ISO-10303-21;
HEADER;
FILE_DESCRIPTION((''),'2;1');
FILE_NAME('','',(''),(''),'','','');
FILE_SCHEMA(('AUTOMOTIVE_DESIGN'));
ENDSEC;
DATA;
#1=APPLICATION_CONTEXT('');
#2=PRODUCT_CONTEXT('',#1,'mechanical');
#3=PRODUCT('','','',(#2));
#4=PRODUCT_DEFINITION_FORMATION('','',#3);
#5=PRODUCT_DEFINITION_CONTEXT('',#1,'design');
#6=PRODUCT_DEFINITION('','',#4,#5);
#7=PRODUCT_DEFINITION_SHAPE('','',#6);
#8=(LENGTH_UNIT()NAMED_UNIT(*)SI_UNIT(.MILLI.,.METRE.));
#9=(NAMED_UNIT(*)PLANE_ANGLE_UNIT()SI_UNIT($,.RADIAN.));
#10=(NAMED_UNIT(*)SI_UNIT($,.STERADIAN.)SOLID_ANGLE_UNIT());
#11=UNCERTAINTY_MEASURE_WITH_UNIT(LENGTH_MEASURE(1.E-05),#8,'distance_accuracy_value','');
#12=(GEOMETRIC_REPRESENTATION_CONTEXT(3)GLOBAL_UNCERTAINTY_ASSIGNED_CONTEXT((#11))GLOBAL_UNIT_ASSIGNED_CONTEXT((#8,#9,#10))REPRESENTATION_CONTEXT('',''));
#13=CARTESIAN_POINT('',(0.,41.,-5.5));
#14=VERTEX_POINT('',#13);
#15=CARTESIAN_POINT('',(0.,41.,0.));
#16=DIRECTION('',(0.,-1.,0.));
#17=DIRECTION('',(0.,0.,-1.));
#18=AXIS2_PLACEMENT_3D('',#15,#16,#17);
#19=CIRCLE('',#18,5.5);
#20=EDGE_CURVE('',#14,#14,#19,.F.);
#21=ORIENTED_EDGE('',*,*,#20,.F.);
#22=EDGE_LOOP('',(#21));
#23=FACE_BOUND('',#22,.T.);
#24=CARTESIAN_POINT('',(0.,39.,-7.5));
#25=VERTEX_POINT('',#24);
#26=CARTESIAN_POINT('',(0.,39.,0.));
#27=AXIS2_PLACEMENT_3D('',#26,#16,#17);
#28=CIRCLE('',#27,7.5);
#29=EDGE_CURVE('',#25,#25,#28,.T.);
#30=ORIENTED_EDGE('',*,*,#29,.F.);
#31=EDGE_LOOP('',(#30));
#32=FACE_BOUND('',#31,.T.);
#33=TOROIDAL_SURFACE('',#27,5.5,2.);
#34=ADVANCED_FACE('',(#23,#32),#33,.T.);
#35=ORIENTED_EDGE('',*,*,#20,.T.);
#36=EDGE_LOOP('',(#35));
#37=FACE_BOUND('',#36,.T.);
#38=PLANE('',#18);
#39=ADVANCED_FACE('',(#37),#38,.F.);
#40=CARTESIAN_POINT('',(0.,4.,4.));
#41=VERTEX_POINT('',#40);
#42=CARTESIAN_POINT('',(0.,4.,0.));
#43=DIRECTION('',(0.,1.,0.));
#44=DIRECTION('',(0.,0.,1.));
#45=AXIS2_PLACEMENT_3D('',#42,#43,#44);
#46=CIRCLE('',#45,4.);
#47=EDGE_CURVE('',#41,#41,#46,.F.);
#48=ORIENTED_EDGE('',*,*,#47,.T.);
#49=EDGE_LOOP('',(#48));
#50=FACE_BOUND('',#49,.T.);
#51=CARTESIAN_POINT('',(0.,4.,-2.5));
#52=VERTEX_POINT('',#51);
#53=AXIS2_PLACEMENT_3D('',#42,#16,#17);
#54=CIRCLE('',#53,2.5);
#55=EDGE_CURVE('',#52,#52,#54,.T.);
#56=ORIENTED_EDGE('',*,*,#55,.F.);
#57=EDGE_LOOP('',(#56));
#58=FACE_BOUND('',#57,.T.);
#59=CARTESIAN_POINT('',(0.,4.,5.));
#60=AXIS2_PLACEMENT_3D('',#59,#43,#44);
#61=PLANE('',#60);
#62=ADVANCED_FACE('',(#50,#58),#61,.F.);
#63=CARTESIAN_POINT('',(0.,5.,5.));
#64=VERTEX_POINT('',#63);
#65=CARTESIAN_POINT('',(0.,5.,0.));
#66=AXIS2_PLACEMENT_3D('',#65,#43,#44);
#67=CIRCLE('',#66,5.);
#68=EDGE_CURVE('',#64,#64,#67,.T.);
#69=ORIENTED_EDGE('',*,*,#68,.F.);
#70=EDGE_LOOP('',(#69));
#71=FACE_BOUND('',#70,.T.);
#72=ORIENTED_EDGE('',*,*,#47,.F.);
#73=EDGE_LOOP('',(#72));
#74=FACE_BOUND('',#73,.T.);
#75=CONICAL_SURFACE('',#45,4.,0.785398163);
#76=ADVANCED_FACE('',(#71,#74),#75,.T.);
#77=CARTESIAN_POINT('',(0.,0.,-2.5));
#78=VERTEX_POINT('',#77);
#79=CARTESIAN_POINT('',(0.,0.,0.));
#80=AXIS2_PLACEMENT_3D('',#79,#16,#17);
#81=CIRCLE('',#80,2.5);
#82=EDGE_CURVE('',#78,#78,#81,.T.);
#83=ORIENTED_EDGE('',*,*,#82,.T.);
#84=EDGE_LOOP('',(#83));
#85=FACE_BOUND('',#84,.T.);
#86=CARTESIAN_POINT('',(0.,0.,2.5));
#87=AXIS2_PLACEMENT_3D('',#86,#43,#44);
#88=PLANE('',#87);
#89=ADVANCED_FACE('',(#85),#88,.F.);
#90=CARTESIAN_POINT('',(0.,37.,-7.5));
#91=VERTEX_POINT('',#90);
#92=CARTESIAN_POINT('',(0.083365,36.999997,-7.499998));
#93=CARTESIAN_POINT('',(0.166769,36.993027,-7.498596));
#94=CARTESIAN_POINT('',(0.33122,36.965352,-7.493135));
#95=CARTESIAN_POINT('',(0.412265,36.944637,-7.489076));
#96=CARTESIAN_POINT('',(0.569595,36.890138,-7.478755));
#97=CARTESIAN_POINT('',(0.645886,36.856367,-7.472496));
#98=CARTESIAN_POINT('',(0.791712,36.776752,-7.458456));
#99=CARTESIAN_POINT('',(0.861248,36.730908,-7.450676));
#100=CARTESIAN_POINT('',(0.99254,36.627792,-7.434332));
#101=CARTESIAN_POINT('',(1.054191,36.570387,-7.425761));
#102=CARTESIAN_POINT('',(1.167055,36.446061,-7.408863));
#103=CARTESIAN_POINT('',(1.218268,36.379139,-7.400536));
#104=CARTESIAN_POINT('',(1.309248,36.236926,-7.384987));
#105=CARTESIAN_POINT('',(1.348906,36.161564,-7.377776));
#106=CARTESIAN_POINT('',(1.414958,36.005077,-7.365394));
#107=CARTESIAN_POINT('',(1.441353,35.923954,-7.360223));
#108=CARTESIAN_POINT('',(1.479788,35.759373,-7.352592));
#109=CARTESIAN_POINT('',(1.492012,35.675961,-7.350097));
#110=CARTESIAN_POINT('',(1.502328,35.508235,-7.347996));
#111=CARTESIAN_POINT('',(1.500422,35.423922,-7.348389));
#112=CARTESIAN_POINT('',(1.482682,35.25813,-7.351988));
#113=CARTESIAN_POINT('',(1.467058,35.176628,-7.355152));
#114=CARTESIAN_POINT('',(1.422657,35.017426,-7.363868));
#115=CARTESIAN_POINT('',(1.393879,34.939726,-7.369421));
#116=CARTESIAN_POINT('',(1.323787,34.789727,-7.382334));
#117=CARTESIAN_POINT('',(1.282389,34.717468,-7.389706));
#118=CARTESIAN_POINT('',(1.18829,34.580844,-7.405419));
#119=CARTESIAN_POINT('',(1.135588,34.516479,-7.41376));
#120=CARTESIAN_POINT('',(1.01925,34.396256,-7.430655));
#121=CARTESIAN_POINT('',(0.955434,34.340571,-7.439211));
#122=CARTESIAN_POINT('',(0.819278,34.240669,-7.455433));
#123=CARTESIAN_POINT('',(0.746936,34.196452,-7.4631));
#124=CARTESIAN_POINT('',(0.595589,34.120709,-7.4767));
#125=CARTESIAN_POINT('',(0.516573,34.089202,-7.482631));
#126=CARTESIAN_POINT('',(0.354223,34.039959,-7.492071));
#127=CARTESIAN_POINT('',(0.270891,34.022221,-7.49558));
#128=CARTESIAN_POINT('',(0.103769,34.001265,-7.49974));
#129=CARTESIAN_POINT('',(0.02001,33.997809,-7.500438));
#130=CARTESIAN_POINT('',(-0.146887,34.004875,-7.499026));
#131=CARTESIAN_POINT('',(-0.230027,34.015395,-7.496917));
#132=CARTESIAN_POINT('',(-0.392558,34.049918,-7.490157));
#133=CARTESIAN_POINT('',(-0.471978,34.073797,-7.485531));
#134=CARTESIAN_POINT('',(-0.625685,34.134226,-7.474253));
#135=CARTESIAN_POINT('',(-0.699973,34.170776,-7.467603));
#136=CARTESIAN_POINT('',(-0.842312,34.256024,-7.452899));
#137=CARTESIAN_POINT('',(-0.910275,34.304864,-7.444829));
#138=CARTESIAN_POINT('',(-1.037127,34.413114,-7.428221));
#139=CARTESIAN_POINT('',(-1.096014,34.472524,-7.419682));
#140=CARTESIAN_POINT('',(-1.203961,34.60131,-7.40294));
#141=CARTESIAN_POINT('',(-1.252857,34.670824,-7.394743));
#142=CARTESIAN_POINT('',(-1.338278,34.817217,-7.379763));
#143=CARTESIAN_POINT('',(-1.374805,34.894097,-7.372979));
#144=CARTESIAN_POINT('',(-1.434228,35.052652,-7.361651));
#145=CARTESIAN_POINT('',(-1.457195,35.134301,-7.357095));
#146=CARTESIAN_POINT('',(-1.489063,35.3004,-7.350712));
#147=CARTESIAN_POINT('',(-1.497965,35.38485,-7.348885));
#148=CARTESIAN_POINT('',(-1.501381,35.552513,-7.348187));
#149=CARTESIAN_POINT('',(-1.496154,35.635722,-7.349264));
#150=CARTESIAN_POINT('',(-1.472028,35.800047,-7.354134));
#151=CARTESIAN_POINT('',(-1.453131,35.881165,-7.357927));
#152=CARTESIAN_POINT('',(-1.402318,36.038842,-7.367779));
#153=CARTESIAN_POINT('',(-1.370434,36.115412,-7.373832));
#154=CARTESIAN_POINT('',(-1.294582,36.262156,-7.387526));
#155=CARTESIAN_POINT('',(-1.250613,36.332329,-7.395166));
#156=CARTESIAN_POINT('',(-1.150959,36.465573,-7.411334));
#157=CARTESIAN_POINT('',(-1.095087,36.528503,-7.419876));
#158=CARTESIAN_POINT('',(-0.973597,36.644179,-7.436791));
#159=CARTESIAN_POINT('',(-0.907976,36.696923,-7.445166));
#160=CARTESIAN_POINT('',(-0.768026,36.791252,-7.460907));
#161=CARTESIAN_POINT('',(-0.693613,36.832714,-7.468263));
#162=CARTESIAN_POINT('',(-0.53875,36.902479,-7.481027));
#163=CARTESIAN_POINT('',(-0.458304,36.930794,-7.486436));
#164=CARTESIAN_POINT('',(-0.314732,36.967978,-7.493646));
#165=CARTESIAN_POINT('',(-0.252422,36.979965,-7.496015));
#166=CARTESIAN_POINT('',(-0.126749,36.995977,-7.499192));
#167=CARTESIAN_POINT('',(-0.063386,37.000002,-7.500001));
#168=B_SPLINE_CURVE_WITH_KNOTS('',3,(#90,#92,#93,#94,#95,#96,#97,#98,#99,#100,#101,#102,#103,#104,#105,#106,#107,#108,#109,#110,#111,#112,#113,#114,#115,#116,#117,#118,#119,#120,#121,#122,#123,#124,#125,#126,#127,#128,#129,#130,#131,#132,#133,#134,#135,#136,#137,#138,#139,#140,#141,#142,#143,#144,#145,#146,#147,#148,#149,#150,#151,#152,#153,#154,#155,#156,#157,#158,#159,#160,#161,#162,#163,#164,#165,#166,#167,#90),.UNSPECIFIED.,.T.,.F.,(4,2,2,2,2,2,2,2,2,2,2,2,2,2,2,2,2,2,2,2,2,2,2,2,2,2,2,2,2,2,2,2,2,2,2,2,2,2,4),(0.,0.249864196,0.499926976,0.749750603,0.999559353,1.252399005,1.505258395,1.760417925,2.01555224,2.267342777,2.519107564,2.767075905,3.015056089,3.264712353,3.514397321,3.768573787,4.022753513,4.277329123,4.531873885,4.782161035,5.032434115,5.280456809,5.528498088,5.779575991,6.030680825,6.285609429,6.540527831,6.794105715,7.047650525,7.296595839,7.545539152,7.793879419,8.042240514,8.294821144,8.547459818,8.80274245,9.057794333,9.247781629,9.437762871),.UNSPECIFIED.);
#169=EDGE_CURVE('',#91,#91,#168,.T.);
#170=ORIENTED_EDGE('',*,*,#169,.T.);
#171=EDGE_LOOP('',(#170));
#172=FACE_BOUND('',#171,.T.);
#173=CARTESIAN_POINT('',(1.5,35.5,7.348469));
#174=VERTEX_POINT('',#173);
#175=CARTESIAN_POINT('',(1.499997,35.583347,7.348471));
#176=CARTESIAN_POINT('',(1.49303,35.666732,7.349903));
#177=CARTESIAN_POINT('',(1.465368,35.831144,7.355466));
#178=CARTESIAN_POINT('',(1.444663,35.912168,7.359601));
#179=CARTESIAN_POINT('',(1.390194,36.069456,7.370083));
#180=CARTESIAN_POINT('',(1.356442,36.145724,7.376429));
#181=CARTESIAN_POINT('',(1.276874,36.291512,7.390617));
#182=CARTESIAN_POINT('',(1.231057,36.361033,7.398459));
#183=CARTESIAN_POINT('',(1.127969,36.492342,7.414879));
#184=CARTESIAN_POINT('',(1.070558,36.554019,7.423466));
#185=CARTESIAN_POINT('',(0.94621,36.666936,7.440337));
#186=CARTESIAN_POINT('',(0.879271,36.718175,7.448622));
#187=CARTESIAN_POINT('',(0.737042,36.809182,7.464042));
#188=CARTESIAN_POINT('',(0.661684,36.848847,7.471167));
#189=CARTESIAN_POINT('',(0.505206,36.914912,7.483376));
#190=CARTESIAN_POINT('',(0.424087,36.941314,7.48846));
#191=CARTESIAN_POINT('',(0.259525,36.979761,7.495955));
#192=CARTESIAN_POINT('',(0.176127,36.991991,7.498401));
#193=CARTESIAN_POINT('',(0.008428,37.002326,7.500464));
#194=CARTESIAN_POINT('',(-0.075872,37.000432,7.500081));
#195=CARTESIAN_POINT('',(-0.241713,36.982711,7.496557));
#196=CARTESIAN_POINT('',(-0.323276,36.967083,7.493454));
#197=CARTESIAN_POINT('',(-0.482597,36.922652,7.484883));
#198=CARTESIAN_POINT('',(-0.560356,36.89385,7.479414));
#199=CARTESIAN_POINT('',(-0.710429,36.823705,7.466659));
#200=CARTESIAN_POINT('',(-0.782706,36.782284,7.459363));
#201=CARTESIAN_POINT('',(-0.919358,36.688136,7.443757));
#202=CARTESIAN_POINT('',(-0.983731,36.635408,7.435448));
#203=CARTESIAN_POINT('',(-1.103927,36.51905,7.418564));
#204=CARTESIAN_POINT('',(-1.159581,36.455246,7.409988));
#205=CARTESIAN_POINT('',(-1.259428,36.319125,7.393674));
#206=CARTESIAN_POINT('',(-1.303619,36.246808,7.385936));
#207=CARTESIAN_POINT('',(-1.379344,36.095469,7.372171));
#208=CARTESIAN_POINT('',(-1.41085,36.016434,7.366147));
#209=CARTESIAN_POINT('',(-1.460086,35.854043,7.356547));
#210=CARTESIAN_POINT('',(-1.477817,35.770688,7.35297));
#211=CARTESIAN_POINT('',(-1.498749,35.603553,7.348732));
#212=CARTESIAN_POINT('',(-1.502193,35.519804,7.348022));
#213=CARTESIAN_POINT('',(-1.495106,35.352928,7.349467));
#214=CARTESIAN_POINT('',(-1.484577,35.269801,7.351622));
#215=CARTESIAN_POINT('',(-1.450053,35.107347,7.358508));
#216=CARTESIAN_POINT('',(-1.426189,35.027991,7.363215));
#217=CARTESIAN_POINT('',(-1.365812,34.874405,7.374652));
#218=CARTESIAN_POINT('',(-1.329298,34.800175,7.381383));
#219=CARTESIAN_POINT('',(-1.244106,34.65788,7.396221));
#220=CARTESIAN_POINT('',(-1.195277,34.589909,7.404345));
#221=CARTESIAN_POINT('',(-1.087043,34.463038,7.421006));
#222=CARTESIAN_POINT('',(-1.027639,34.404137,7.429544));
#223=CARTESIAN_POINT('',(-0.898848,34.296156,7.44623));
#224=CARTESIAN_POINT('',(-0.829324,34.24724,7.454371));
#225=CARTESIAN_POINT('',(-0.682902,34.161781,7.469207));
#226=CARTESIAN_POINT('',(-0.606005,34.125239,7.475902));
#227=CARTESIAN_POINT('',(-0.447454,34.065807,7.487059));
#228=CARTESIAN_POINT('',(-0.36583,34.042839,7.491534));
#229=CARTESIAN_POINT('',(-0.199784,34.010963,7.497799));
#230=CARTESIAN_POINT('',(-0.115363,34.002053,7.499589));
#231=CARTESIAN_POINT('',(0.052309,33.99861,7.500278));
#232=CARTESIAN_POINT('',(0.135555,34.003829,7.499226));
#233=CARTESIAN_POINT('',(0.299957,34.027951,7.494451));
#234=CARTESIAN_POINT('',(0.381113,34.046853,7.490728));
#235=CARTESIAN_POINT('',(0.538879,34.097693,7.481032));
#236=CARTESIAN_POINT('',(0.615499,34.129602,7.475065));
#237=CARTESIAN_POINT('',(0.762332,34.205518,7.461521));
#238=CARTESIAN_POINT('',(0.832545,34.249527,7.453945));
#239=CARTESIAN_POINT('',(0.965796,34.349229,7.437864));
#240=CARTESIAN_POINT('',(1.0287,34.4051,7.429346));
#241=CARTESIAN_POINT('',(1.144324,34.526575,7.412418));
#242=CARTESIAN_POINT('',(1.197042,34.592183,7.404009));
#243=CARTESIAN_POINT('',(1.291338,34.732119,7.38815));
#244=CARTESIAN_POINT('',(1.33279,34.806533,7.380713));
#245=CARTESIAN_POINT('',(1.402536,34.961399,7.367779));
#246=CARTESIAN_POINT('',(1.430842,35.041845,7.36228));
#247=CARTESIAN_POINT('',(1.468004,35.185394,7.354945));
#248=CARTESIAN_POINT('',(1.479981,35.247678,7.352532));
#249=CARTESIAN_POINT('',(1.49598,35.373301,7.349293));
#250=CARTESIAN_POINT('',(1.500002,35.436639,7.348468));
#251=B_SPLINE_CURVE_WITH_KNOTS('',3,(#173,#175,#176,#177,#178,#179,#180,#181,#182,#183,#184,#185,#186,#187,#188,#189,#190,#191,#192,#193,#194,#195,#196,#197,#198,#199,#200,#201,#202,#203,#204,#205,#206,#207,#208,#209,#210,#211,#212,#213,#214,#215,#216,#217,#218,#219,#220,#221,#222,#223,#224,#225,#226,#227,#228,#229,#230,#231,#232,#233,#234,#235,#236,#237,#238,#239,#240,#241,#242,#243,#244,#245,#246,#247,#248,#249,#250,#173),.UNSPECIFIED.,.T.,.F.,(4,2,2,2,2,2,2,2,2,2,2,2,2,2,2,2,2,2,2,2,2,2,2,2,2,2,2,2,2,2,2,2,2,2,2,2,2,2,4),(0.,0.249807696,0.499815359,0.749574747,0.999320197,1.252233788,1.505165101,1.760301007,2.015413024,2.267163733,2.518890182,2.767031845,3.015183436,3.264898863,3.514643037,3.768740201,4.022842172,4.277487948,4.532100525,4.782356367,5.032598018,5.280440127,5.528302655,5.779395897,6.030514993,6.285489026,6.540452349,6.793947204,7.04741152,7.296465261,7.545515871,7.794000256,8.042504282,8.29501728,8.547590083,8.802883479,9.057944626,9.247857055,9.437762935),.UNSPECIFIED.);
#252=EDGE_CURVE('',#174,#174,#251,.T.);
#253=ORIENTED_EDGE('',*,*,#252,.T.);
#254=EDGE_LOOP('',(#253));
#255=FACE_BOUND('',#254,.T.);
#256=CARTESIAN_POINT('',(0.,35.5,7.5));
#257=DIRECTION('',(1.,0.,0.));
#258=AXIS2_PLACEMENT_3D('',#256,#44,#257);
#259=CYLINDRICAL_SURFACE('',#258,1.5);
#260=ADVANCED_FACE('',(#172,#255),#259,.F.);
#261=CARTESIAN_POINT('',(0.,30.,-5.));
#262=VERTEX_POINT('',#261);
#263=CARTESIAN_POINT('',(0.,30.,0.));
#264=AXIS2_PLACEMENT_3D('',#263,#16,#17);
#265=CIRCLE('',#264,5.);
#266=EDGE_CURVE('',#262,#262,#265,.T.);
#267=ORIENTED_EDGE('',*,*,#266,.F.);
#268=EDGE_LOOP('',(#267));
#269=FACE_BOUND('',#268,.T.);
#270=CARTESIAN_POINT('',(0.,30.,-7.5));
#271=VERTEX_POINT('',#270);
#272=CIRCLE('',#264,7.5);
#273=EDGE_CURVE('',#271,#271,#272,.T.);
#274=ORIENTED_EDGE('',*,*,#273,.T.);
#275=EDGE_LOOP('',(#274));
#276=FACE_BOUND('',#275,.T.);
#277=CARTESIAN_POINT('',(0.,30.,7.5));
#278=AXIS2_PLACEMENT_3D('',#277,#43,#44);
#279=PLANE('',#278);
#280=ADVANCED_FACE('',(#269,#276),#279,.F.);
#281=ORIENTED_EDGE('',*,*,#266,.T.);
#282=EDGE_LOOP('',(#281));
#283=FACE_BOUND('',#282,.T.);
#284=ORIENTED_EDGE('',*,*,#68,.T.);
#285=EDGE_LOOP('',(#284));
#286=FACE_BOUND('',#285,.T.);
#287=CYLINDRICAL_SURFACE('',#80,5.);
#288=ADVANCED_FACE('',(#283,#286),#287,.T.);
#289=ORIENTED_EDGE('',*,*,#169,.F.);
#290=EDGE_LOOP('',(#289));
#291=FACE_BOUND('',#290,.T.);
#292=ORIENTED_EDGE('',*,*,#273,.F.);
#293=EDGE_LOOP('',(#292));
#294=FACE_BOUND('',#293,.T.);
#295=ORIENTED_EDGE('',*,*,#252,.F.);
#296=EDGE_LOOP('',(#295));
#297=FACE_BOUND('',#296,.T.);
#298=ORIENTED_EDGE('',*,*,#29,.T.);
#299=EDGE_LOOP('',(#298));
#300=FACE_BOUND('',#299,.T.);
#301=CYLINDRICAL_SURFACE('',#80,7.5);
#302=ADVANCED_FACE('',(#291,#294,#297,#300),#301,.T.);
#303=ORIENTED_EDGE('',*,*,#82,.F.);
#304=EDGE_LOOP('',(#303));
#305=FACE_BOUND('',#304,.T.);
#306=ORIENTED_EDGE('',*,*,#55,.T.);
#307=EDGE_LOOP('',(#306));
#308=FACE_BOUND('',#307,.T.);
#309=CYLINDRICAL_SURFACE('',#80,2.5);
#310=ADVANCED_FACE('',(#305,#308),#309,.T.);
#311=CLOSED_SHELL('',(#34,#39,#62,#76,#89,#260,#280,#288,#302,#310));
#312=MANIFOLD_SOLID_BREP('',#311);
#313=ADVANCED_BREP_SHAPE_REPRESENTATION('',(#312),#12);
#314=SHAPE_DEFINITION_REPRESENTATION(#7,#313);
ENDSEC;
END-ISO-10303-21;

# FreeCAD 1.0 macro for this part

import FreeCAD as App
import Part
import Sketcher

V = App.Vector
Q = App.Units.Quantity


def edges_at(feature, points):
    """Names of the edges that pass closest to the given points."""
    edges = feature.Shape.Edges
    near = lambda p: min(range(len(edges)), key=lambda i: edges[i].distToShape(Part.Vertex(*p))[0])
    return sorted({f"Edge{near(p) + 1}" for p in points})

doc = App.newDocument("Part")
body = doc.addObject("PartDesign::Body", "Body")

# Sketch on YZ plane
sketch1 = doc.addObject("Sketcher::SketchObject", "Sketch")
body.addObject(sketch1)
sketch1.AttachmentSupport = (doc.YZ_Plane, [""])
sketch1.MapMode = "FlatFace"
sketch1.addGeometry([
    Part.LineSegment(V(41, 0, 0), V(41, 7.5, 0)),  # 0
    Part.LineSegment(V(41, 7.5, 0), V(30, 7.5, 0)),  # 1
    Part.LineSegment(V(30, 7.5, 0), V(30, 5, 0)),  # 2
    Part.LineSegment(V(30, 5, 0), V(4, 5, 0)),  # 3
    Part.LineSegment(V(4, 5, 0), V(4, 2.5, 0)),  # 4
    Part.LineSegment(V(4, 2.5, 0), V(0, 2.5, 0)),  # 5
    Part.LineSegment(V(0, 2.5, 0), V(0, 0, 0)),  # 6
    Part.LineSegment(V(0, 0, 0), V(41, 0, 0)),  # 7
], False)
sketch1.addConstraint([
    Sketcher.Constraint("Coincident", 0, 2, 1, 1),
    Sketcher.Constraint("Coincident", 1, 2, 2, 1),
    Sketcher.Constraint("Coincident", 2, 2, 3, 1),
    Sketcher.Constraint("Coincident", 3, 2, 4, 1),
    Sketcher.Constraint("Coincident", 4, 2, 5, 1),
    Sketcher.Constraint("Coincident", 5, 2, 6, 1),
    Sketcher.Constraint("Coincident", 6, 2, 7, 1),
    Sketcher.Constraint("Coincident", 7, 2, 0, 1),
    Sketcher.Constraint("Vertical", 0),
    Sketcher.Constraint("Horizontal", 1),
    Sketcher.Constraint("Vertical", 2),
    Sketcher.Constraint("Horizontal", 3),
    Sketcher.Constraint("Vertical", 4),
    Sketcher.Constraint("Horizontal", 5),
    Sketcher.Constraint("Vertical", 6),
    Sketcher.Constraint("Horizontal", 7),
    Sketcher.Constraint("Coincident", 6, 2, -1, 1),
    Sketcher.Constraint("Equal", 2, 4),
    Sketcher.Constraint("Equal", 4, 6),
    Sketcher.Constraint("DistanceX", 1, 2, 1, 1, Q("11 mm")),
    Sketcher.Constraint("DistanceX", 3, 2, 3, 1, Q("26 mm")),
    Sketcher.Constraint("DistanceX", 5, 2, 5, 1, Q("4 mm")),
    Sketcher.Constraint("DistanceY", 0, 1, 0, 2, Q("7.5 mm")),
])
revolution = doc.addObject("PartDesign::Revolution", "Revolution")
body.addObject(revolution)
revolution.Profile = sketch1
revolution.ReferenceAxis = (sketch1, ["H_Axis"])
revolution.Angle = 360

# Sketch on YZ plane
sketch2 = doc.addObject("Sketcher::SketchObject", "Sketch001")
body.addObject(sketch2)
sketch2.AttachmentSupport = (doc.YZ_Plane, [""])
sketch2.MapMode = "FlatFace"
sketch2.addGeometry([
    Part.LineSegment(V(37, 7.5, 0), V(35.5, 7.5, 0)),
    Part.LineSegment(V(35.5, 7.5, 0), V(35.5, -7.5, 0)),
    Part.LineSegment(V(35.5, -7.5, 0), V(37, -7.5, 0)),
    Part.LineSegment(V(37, -7.5, 0), V(37, 7.5, 0)),
], False)
sketch2.addGeometry(Part.LineSegment(V(35.5, 7.5, 0), V(35.5, -7.5, 0)), True)  # axis
sketch2.addConstraint([
    Sketcher.Constraint("Coincident", 0, 2, 1, 1),
    Sketcher.Constraint("Coincident", 1, 2, 2, 1),
    Sketcher.Constraint("Coincident", 2, 2, 3, 1),
    Sketcher.Constraint("Coincident", 3, 2, 0, 1),
    Sketcher.Constraint("Horizontal", 0),
    Sketcher.Constraint("Vertical", 1),
    Sketcher.Constraint("Horizontal", 2),
    Sketcher.Constraint("Vertical", 3),
    Sketcher.Constraint("Vertical", 4),
    Sketcher.Constraint("Coincident", 4, 1, 0, 2),
    Sketcher.Constraint("Horizontal", 2, 2, 4, 2),
    Sketcher.Constraint("DistanceY", 1, 2, 1, 1, Q("15 mm")),
    Sketcher.Constraint("DistanceX", 0, 2, 0, 1, Q("1.5 mm")),
    Sketcher.Constraint("DistanceX", -1, 1, 2, 2, Q("37 mm")),
    Sketcher.Constraint("DistanceY", -1, 1, 0, 2, Q("7.5 mm")),
])
groove = doc.addObject("PartDesign::Groove", "Groove")
body.addObject(groove)
groove.Profile = sketch2
groove.ReferenceAxis = (sketch2, ["Axis0"])
groove.Angle = 360
doc.recompute()

fillet = doc.addObject("PartDesign::Fillet", "Fillet")
body.addObject(fillet)
fillet.Base = (groove, edges_at(groove, [(0, 41, 7.5)]))
fillet.Radius = 2
doc.recompute()

chamfer = doc.addObject("PartDesign::Chamfer", "Chamfer")
body.addObject(chamfer)
chamfer.Base = (fillet, edges_at(fillet, [(0, 4, 5)]))
chamfer.Size = 1

doc.recompute()
